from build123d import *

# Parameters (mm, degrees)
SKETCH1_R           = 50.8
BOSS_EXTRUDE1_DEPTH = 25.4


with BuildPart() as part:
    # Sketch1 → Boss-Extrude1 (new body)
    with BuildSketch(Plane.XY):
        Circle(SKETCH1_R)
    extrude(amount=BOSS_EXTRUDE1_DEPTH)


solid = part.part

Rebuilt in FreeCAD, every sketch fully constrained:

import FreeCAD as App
import Part
import Sketcher
Q = App.Units.Quantity

doc = App.newDocument("Part")
params = doc.addObject("Spreadsheet::Sheet", "Params")
for row, (alias, value) in enumerate([
    ("sketch1_diameter", "4 in"),
    ("pad1_length", "1 in"),
], start=1):
    params.set(f"A{row}", alias)
    params.set(f"B{row}", "=" + value)
    params.setAlias(f"B{row}", alias)

body = doc.addObject("PartDesign::Body", "Body")

# Sketch on XY plane
sketch1 = body.newObject("Sketcher::SketchObject", "Sketch")
sketch1.AttachmentSupport = (doc.getObject("XY_Plane"), [""])
sketch1.MapMode = "FlatFace"
sketch1.addGeometry(Part.Circle(App.Vector(0, 0, 0), App.Vector(0, 0, 1), 51), False)
sketch1.addConstraint(Sketcher.Constraint("Coincident", 0, 3, -1, 1))
sketch1.addConstraint(Sketcher.Constraint("Diameter", 0, Q("4 in")))
sketch1.setExpression("Constraints[1]", "Params.sketch1_diameter")
pad1 = body.newObject("PartDesign::Pad", "Pad")
pad1.Profile = sketch1
pad1.setExpression("Length", "Params.pad1_length")

doc.recompute()
